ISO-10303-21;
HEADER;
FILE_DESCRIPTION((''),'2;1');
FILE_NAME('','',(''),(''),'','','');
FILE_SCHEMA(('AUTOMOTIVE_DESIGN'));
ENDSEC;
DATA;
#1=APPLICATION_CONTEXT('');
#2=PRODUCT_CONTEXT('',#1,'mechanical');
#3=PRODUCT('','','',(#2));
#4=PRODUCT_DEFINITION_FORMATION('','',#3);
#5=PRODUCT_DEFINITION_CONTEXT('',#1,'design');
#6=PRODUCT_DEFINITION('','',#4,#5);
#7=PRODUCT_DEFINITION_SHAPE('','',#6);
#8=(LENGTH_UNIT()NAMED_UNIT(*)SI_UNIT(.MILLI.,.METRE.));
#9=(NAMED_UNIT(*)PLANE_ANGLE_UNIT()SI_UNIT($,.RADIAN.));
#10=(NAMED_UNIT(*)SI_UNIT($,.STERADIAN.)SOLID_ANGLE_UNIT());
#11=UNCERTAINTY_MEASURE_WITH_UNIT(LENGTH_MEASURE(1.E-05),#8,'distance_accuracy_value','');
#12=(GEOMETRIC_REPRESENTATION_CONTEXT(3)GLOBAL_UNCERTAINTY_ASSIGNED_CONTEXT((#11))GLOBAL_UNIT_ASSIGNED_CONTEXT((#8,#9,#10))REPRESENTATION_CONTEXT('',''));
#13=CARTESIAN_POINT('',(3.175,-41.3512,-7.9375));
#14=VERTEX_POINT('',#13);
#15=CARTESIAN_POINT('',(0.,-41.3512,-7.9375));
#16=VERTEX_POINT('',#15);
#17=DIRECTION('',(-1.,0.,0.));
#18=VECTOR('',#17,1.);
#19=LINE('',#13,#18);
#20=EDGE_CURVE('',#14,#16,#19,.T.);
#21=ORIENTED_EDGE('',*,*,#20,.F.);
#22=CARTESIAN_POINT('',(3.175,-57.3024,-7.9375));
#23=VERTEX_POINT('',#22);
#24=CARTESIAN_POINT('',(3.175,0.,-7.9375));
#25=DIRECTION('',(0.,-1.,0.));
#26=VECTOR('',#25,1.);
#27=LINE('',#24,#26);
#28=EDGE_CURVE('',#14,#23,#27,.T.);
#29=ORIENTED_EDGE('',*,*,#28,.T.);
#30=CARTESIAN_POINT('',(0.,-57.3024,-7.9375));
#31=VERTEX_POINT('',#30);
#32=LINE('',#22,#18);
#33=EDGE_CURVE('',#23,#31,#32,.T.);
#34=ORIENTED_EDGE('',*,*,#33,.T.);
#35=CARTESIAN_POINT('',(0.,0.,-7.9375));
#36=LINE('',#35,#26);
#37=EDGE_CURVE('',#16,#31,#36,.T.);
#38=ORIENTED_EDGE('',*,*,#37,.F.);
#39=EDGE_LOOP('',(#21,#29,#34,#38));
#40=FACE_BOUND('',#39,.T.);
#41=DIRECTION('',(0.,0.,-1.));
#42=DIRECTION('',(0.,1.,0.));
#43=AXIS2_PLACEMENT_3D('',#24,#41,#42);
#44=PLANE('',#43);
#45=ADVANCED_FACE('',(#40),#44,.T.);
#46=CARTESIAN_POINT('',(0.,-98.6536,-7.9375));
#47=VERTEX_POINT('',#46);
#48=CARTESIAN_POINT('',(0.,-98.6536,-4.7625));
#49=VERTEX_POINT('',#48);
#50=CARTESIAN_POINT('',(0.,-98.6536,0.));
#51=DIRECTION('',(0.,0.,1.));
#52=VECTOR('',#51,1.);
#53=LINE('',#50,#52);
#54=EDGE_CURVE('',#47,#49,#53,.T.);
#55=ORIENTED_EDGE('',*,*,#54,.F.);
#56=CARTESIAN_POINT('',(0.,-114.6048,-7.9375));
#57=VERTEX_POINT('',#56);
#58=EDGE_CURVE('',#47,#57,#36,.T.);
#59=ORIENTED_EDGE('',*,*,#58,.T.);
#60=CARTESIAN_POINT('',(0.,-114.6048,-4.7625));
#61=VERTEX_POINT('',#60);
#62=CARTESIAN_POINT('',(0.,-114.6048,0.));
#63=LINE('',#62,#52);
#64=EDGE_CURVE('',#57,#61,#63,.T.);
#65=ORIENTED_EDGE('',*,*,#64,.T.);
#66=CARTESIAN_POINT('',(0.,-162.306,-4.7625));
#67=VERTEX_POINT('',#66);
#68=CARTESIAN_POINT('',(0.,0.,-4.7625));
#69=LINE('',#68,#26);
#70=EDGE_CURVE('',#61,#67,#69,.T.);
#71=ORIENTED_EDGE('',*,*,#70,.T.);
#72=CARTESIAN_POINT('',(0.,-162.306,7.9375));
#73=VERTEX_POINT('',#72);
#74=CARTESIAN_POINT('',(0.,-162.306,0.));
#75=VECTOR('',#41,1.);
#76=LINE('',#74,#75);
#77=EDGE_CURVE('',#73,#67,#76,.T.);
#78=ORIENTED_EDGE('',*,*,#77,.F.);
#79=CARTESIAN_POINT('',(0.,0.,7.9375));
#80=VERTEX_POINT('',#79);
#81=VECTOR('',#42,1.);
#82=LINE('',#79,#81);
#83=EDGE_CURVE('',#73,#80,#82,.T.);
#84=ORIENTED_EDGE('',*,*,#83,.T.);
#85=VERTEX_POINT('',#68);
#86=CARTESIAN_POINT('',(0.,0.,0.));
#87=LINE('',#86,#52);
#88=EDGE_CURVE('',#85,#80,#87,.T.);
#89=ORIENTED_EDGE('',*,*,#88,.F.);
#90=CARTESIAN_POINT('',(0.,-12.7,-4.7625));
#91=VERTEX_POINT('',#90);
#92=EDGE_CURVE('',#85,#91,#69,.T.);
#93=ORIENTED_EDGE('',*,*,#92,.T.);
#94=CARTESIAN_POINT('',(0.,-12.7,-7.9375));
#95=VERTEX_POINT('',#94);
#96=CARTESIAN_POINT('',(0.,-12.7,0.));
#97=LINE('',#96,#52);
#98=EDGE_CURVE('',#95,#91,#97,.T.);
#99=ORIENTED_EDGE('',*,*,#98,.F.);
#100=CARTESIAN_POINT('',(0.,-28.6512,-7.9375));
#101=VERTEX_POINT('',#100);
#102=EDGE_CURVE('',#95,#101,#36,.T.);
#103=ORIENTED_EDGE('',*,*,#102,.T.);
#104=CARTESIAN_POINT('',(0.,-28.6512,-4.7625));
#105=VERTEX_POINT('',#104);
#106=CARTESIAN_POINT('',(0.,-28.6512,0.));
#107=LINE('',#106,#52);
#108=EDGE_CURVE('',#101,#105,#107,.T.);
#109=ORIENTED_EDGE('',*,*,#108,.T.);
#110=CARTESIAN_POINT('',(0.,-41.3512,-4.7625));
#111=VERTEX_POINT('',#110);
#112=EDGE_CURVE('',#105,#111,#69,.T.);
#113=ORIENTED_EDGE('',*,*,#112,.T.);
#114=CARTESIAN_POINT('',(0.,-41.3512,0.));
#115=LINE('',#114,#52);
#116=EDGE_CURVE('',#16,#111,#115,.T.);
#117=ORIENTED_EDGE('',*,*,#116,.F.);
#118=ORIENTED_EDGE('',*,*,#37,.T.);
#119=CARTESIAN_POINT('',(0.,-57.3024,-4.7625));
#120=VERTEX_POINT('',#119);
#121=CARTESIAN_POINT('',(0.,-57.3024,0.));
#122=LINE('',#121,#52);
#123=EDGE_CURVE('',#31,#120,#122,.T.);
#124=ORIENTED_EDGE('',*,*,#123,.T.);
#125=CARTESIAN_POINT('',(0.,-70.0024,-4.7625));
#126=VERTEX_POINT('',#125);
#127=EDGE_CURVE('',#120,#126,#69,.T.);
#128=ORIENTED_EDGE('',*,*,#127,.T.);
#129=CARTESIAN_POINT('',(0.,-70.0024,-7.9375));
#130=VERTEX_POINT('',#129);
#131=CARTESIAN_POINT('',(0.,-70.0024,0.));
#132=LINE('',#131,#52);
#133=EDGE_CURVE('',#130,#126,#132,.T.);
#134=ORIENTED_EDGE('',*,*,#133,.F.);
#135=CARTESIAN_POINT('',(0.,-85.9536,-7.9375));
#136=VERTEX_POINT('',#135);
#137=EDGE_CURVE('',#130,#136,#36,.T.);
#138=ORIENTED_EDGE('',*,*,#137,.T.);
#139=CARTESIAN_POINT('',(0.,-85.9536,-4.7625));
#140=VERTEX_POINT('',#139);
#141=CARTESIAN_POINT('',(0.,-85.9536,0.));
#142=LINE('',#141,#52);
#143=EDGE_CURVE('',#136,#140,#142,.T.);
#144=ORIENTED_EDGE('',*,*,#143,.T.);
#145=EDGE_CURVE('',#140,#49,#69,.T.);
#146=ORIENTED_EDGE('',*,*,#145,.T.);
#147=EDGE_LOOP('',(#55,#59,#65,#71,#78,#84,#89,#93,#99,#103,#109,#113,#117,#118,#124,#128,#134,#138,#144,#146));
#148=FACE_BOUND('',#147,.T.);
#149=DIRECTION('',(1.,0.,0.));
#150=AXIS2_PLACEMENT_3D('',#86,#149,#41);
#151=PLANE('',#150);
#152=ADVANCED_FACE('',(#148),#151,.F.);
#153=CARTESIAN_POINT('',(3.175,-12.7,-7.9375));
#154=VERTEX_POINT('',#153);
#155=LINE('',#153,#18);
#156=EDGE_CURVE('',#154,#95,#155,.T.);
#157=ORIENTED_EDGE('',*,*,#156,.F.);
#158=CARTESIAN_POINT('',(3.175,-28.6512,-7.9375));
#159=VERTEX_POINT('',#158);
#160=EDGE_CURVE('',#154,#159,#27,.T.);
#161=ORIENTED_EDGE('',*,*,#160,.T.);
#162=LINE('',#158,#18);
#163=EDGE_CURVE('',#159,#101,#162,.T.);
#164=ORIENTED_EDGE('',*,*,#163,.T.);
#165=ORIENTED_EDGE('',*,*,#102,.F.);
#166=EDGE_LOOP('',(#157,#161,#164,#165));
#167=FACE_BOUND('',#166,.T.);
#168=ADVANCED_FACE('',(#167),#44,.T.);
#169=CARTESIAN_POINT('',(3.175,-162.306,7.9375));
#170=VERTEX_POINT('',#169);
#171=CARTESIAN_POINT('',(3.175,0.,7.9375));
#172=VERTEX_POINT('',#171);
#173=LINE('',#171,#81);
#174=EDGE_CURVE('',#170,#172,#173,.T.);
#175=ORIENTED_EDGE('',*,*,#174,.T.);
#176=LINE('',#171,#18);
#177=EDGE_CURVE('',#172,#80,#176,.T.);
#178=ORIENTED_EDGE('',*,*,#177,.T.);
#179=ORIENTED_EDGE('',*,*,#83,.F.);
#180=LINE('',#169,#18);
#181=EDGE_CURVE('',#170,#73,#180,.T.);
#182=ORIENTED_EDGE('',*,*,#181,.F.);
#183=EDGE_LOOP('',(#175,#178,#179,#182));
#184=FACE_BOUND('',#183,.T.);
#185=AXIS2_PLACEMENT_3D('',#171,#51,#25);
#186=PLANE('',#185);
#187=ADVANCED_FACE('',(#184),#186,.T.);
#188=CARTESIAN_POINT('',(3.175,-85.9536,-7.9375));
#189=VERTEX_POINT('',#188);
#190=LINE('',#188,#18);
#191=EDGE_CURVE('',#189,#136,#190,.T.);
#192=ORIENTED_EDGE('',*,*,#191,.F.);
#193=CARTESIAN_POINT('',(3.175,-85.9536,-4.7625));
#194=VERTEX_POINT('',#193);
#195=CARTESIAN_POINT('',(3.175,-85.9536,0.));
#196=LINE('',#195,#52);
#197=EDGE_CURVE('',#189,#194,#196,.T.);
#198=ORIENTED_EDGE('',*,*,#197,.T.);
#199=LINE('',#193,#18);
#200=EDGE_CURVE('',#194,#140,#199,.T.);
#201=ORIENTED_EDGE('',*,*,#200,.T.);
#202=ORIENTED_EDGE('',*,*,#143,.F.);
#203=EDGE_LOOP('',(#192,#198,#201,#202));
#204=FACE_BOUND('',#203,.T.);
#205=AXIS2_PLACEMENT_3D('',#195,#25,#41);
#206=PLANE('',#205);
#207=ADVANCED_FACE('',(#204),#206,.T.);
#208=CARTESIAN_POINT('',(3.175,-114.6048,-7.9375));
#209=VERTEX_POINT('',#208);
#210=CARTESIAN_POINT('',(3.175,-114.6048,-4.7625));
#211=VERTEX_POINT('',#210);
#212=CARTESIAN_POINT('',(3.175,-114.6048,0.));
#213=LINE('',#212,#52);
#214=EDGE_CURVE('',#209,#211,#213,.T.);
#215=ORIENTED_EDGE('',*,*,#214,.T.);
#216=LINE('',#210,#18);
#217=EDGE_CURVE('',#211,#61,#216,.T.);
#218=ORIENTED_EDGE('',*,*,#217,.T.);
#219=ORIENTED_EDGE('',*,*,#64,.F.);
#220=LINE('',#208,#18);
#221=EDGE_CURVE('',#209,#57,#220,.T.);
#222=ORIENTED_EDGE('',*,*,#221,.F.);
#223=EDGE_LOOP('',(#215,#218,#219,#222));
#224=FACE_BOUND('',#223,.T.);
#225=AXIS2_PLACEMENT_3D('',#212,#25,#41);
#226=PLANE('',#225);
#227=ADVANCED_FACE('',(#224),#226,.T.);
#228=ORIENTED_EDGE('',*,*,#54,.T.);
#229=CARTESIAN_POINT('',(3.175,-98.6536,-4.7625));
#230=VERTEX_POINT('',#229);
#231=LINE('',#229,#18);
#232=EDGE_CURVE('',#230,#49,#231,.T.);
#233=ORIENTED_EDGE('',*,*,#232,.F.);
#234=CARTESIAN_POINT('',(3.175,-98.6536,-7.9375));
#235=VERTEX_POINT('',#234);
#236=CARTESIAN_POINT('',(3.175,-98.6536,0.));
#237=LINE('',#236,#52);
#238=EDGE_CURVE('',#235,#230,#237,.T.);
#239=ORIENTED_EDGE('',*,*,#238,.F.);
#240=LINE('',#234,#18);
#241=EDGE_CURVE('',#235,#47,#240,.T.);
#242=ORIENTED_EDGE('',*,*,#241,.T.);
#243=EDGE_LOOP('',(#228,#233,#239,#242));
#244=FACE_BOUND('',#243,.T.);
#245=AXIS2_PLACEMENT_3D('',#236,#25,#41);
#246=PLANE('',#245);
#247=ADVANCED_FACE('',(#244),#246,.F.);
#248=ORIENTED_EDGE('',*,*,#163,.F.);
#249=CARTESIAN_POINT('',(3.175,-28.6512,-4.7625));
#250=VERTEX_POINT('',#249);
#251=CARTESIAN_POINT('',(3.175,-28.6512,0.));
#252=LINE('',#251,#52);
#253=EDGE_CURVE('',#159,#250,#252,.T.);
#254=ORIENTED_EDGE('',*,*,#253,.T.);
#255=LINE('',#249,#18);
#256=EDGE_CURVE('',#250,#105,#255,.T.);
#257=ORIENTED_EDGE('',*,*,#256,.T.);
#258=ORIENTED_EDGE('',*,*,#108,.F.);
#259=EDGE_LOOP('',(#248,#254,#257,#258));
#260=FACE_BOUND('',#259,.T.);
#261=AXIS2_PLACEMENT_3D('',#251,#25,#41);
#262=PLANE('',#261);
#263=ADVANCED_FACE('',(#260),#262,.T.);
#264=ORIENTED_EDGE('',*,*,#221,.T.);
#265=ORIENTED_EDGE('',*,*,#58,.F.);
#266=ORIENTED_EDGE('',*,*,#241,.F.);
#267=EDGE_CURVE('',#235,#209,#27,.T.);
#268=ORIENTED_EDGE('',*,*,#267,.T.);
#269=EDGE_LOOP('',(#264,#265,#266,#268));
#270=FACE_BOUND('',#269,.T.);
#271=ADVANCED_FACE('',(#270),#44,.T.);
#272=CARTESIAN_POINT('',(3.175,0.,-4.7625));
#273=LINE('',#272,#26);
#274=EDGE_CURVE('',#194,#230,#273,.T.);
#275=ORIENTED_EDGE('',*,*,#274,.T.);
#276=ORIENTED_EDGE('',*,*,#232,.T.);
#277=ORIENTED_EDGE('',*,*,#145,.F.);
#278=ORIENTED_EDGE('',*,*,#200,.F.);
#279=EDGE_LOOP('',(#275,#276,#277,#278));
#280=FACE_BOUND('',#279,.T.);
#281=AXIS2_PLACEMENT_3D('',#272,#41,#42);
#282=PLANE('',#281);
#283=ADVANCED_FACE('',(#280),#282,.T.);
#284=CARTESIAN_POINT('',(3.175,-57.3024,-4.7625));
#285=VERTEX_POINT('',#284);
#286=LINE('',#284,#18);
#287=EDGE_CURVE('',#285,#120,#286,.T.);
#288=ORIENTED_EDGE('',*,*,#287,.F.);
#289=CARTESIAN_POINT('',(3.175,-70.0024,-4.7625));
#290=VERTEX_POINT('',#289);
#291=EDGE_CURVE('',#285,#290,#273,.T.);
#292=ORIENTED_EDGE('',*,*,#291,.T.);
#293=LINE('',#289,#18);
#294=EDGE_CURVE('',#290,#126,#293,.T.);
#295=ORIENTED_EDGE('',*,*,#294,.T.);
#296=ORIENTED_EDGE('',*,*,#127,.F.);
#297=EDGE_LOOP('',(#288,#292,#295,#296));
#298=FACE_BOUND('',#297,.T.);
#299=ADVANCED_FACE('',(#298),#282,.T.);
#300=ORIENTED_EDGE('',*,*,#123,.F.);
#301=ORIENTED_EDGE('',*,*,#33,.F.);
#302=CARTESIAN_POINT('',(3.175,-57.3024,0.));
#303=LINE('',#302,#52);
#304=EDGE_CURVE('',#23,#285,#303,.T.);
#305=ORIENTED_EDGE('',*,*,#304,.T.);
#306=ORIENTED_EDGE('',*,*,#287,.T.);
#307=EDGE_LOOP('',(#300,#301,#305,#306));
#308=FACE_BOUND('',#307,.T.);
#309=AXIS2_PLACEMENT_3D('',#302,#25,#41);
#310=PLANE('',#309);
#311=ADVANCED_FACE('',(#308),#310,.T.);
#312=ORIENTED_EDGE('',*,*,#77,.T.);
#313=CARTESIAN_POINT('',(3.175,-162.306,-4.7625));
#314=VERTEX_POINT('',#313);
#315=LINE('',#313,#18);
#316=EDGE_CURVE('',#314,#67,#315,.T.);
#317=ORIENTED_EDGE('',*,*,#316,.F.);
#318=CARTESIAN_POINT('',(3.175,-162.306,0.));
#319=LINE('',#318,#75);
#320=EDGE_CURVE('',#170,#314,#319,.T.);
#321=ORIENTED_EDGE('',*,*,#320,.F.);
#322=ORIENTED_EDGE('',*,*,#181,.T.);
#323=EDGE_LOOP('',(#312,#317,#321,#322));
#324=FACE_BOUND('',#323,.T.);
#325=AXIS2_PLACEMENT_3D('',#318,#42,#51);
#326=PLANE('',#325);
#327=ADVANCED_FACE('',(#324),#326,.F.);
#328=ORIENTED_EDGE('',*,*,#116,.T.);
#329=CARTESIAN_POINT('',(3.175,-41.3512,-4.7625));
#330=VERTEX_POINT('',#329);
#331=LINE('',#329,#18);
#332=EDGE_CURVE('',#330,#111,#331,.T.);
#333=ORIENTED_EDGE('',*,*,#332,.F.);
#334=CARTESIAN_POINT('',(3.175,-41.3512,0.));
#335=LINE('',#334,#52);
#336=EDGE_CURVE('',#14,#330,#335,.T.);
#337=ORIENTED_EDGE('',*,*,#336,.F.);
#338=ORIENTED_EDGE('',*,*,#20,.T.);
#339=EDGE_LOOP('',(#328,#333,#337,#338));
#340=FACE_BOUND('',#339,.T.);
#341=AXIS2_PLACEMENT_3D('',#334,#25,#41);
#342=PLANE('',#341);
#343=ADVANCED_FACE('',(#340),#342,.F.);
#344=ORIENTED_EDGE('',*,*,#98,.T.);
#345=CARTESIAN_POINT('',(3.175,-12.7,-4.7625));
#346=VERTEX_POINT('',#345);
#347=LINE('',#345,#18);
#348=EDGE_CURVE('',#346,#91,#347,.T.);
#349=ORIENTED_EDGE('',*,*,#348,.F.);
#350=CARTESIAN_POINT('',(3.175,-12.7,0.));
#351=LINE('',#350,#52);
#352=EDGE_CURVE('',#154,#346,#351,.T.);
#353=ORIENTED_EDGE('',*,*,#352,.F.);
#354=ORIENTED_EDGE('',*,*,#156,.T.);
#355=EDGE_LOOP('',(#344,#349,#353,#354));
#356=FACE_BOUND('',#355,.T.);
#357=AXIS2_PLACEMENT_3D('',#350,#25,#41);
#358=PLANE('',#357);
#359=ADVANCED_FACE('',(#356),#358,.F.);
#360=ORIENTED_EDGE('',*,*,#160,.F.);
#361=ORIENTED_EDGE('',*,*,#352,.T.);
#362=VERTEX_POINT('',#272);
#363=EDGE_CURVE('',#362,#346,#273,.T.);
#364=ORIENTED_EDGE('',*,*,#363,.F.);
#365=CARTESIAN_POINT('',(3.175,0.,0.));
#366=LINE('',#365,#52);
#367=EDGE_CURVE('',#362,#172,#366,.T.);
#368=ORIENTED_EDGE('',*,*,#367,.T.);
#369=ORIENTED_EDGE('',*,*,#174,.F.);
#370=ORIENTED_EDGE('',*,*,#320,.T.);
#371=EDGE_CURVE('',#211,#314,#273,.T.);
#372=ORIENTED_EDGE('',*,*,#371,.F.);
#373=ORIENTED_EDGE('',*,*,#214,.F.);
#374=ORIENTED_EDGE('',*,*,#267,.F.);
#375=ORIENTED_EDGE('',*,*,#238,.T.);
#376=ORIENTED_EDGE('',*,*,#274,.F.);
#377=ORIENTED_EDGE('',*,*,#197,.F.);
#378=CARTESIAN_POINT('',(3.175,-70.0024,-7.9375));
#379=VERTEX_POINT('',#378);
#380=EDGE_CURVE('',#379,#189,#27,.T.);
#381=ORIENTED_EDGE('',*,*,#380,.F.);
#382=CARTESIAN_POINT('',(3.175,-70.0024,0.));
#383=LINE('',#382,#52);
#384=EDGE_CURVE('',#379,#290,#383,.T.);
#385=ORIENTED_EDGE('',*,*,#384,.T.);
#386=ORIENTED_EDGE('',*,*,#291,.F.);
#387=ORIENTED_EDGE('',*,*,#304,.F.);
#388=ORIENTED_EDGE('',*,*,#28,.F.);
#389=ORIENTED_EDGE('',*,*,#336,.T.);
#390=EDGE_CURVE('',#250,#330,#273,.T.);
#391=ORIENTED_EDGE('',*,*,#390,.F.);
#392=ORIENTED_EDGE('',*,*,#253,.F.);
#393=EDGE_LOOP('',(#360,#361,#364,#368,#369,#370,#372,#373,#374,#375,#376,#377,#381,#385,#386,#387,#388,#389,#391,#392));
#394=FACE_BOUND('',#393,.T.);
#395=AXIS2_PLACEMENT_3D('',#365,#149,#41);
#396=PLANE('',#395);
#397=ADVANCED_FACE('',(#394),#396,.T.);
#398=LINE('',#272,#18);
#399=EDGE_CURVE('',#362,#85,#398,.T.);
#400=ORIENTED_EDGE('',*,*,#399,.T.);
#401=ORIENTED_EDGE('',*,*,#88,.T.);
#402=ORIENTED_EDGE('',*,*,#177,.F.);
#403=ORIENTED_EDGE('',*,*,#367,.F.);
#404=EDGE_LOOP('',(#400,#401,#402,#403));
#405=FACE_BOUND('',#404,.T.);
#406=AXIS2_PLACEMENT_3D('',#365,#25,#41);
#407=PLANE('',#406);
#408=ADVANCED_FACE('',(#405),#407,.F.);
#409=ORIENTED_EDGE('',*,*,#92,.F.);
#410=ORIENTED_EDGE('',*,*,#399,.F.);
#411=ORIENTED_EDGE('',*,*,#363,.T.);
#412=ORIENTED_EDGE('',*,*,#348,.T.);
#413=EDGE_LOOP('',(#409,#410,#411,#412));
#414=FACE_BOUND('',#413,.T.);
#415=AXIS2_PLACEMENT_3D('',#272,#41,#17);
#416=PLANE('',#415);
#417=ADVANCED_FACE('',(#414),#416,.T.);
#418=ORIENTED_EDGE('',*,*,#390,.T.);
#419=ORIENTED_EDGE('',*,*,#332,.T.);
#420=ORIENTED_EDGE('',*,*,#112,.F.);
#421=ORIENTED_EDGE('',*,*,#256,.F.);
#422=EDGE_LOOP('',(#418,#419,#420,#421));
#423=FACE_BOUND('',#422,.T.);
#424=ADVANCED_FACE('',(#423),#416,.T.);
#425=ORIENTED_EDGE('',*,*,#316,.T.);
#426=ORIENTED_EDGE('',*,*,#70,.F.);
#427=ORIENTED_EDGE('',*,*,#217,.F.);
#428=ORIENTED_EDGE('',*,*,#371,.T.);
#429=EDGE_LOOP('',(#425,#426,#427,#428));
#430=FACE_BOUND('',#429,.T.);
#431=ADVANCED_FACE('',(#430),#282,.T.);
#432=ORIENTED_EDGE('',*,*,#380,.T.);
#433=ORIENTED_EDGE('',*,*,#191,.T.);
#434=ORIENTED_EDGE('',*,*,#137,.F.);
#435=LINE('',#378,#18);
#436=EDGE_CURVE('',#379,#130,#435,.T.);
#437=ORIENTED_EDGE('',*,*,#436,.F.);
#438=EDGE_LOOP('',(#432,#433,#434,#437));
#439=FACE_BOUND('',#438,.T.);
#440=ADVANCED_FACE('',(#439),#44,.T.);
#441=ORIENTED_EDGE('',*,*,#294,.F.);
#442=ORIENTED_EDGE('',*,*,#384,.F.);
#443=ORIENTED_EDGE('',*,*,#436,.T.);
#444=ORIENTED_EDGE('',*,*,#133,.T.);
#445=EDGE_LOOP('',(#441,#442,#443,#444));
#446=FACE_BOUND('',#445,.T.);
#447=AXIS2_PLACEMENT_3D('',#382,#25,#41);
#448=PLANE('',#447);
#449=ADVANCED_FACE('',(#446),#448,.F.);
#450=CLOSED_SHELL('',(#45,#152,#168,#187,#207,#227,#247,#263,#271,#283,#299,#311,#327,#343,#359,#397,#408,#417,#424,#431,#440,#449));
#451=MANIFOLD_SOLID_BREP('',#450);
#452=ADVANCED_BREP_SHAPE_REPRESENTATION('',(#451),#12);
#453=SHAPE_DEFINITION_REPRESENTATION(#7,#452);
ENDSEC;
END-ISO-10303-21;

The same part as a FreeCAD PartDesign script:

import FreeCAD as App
import Part
import Sketcher
from FreeCAD import Vector
Q = App.Units.Quantity

doc = App.newDocument("Part")
body = doc.addObject("PartDesign::Body", "Body")

# Sketch on YZ plane
sketch1 = body.newObject("Sketcher::SketchObject", "Sketch")
sketch1.AttachmentSupport = (doc.getObject("YZ_Plane"), [""])
sketch1.MapMode = "FlatFace"
sketch1.addGeometry([
    Part.LineSegment(Vector(0, 7.9375, 0), Vector(-162.306, 7.9375, 0)),  # 0
    Part.LineSegment(Vector(-162.306, 7.9375, 0), Vector(-162.306, -4.7625, 0)),  # 1
    Part.LineSegment(Vector(-162.306, -4.7625, 0), Vector(-114.6048, -4.7625, 0)),  # 2
    Part.LineSegment(Vector(-114.6048, -4.7625, 0), Vector(-114.6048, -7.9375, 0)),  # 3
    Part.LineSegment(Vector(-114.6048, -7.9375, 0), Vector(-98.6536, -7.9375, 0)),  # 4
    Part.LineSegment(Vector(-98.6536, -7.9375, 0), Vector(-98.6536, -4.7625, 0)),  # 5
    Part.LineSegment(Vector(-98.6536, -4.7625, 0), Vector(-85.9536, -4.7625, 0)),  # 6
    Part.LineSegment(Vector(-85.9536, -4.7625, 0), Vector(-85.9536, -7.9375, 0)),  # 7
    Part.LineSegment(Vector(-85.9536, -7.9375, 0), Vector(-70.0024, -7.9375, 0)),  # 8
    Part.LineSegment(Vector(-70.0024, -7.9375, 0), Vector(-70.0024, -4.7625, 0)),  # 9
    Part.LineSegment(Vector(-70.0024, -4.7625, 0), Vector(-57.3024, -4.7625, 0)),  # 10
    Part.LineSegment(Vector(-57.3024, -4.7625, 0), Vector(-57.3024, -7.9375, 0)),  # 11
    Part.LineSegment(Vector(-57.3024, -7.9375, 0), Vector(-41.3512, -7.9375, 0)),  # 12
    Part.LineSegment(Vector(-41.3512, -7.9375, 0), Vector(-41.3512, -4.7625, 0)),  # 13
    Part.LineSegment(Vector(-41.3512, -4.7625, 0), Vector(-28.6512, -4.7625, 0)),  # 14
    Part.LineSegment(Vector(-28.6512, -4.7625, 0), Vector(-28.6512, -7.9375, 0)),  # 15
    Part.LineSegment(Vector(-28.6512, -7.9375, 0), Vector(-12.7, -7.9375, 0)),  # 16
    Part.LineSegment(Vector(-12.7, -7.9375, 0), Vector(-12.7, -4.7625, 0)),  # 17
    Part.LineSegment(Vector(-12.7, -4.7625, 0), Vector(0, -4.7625, 0)),  # 18
    Part.LineSegment(Vector(0, -4.7625, 0), Vector(0, 7.9375, 0)),  # 19
], False)
sketch1.addConstraint([
    Sketcher.Constraint("Coincident", 0, 2, 1, 1),
    Sketcher.Constraint("Coincident", 1, 2, 2, 1),
    Sketcher.Constraint("Coincident", 2, 2, 3, 1),
    Sketcher.Constraint("Coincident", 3, 2, 4, 1),
    Sketcher.Constraint("Coincident", 4, 2, 5, 1),
    Sketcher.Constraint("Coincident", 5, 2, 6, 1),
    Sketcher.Constraint("Coincident", 6, 2, 7, 1),
    Sketcher.Constraint("Coincident", 7, 2, 8, 1),
    Sketcher.Constraint("Coincident", 8, 2, 9, 1),
    Sketcher.Constraint("Coincident", 9, 2, 10, 1),
    Sketcher.Constraint("Coincident", 10, 2, 11, 1),
    Sketcher.Constraint("Coincident", 11, 2, 12, 1),
    Sketcher.Constraint("Coincident", 12, 2, 13, 1),
    Sketcher.Constraint("Coincident", 13, 2, 14, 1),
    Sketcher.Constraint("Coincident", 14, 2, 15, 1),
    Sketcher.Constraint("Coincident", 15, 2, 16, 1),
    Sketcher.Constraint("Coincident", 16, 2, 17, 1),
    Sketcher.Constraint("Coincident", 17, 2, 18, 1),
    Sketcher.Constraint("Coincident", 18, 2, 19, 1),
    Sketcher.Constraint("Coincident", 19, 2, 0, 1),
    Sketcher.Constraint("Horizontal", 0),
    Sketcher.Constraint("Vertical", 1),
    Sketcher.Constraint("Horizontal", 2),
    Sketcher.Constraint("Vertical", 3),
    Sketcher.Constraint("Horizontal", 4),
    Sketcher.Constraint("Vertical", 5),
    Sketcher.Constraint("Horizontal", 6),
    Sketcher.Constraint("Vertical", 7),
    Sketcher.Constraint("Horizontal", 8),
    Sketcher.Constraint("Vertical", 9),
    Sketcher.Constraint("Horizontal", 10),
    Sketcher.Constraint("Vertical", 11),
    Sketcher.Constraint("Horizontal", 12),
    Sketcher.Constraint("Vertical", 13),
    Sketcher.Constraint("Horizontal", 14),
    Sketcher.Constraint("Vertical", 15),
    Sketcher.Constraint("Horizontal", 16),
    Sketcher.Constraint("Vertical", 17),
    Sketcher.Constraint("Horizontal", 18),
    Sketcher.Constraint("Vertical", 19),
    Sketcher.Constraint("PointOnObject", 18, 2, -2),
    Sketcher.Constraint("Horizontal", 2, 2, 5, 2),
    Sketcher.Constraint("Horizontal", 4, 2, 7, 2),
    Sketcher.Constraint("Horizontal", 6, 2, 9, 2),
    Sketcher.Constraint("Horizontal", 8, 2, 11, 2),
    Sketcher.Constraint("Horizontal", 10, 2, 13, 2),
    Sketcher.Constraint("Horizontal", 12, 2, 15, 2),
    Sketcher.Constraint("Horizontal", 14, 2, 17, 2),
    Sketcher.Constraint("Equal", 4, 8),
    Sketcher.Constraint("Equal", 6, 10),
    Sketcher.Constraint("Equal", 8, 12),
    Sketcher.Constraint("Equal", 10, 14),
    Sketcher.Constraint("Equal", 12, 16),
    Sketcher.Constraint("Equal", 14, 18),
    Sketcher.Constraint("Equal", 18, 1),
    Sketcher.Constraint("DistanceX", 6, 1, 6, 2, Q("0.5 in")),
    Sketcher.Constraint("DistanceX", 0, 2, 0, 1, Q("6.39 in")),
    Sketcher.Constraint("DistanceX", 2, 1, 2, 2, Q("1.878 in")),
    Sketcher.Constraint("DistanceY", 3, 2, 3, 1, Q("0.125 in")),
    Sketcher.Constraint("DistanceY", -1, 1, 0, 2, Q("0.3125 in")),
])
pad1 = body.newObject("PartDesign::Pad", "Pad")
pad1.Profile = sketch1
pad1.Length = Q("0.125 in")

doc.recompute()
